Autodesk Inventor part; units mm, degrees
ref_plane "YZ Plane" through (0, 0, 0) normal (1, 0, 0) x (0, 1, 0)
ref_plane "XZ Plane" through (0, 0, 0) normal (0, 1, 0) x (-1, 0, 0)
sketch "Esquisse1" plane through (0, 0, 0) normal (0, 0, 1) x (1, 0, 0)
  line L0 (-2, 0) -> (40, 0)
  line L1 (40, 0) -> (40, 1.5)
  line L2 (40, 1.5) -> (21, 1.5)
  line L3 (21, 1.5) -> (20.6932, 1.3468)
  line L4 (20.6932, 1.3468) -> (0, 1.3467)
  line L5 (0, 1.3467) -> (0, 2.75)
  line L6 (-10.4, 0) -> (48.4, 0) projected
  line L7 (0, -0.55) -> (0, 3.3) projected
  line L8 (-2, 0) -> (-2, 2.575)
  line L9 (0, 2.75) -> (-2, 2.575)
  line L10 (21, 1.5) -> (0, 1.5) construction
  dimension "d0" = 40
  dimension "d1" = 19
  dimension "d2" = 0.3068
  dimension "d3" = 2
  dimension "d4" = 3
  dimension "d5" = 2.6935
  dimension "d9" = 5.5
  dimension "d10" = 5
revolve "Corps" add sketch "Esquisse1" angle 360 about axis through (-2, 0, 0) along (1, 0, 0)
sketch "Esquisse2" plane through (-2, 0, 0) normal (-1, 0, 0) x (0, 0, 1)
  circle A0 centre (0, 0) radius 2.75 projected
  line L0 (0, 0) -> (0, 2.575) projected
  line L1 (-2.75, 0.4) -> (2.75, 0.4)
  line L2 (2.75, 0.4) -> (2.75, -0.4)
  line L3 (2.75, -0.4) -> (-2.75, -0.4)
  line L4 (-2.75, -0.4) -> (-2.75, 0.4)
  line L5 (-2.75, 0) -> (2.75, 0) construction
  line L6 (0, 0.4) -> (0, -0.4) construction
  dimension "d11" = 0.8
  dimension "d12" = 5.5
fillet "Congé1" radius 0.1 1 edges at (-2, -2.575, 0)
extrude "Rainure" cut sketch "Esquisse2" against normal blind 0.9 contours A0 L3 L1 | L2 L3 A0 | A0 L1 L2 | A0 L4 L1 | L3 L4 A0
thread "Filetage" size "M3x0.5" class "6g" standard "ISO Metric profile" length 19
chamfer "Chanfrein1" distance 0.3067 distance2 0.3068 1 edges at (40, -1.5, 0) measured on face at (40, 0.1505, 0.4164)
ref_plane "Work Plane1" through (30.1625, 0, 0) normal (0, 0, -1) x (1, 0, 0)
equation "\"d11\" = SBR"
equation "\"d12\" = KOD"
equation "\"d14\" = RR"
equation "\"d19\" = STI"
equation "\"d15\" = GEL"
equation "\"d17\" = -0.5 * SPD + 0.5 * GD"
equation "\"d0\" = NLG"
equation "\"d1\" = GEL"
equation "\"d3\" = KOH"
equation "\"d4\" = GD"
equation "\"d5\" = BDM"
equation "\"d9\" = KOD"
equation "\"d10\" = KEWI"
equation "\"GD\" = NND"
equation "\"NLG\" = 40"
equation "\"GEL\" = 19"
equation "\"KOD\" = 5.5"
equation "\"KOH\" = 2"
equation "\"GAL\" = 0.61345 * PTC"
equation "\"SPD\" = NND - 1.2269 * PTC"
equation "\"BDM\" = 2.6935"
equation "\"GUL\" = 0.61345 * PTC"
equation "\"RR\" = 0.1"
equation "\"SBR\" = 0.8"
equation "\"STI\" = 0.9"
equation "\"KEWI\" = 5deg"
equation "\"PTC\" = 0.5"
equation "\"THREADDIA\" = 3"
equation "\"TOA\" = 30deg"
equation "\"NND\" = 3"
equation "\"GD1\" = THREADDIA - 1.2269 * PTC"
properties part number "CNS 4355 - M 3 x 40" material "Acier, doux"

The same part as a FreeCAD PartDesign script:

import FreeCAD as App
import Part
import Sketcher
from FreeCAD import Vector
Q = App.Units.Quantity


def edges_at(feature, points):
    """Names of the edges that pass closest to the given points."""
    edges = feature.Shape.Edges
    near = lambda p: min(range(len(edges)), key=lambda i: edges[i].distToShape(Part.Vertex(*p))[0])
    return sorted({f"Edge{near(p) + 1}" for p in points})

doc = App.newDocument("Part")
body = doc.addObject("PartDesign::Body", "Body")

# Sketch on XY plane
sketch1 = body.newObject("Sketcher::SketchObject", "Sketch")
sketch1.AttachmentSupport = (doc.getObject("XY_Plane"), [""])
sketch1.MapMode = "FlatFace"
sketch1.addGeometry(Part.LineSegment(Vector(-2, 2.58, 0), Vector(-2, 0, 0)), False)
sketch1.addGeometry(Part.LineSegment(Vector(-2, 0, 0), Vector(40, 0, 0)), False)
sketch1.addGeometry(Part.LineSegment(Vector(40, 0, 0), Vector(40, 1.5, 0)), False)
sketch1.addGeometry(Part.LineSegment(Vector(40, 1.5, 0), Vector(21, 1.5, 0)), False)
sketch1.addGeometry(Part.LineSegment(Vector(21, 1.5, 0), Vector(20.69, 1.35, 0)), False)
sketch1.addGeometry(Part.LineSegment(Vector(20.69, 1.35, 0), Vector(0, 1.35, 0)), False)
sketch1.addGeometry(Part.LineSegment(Vector(0, 1.35, 0), Vector(0, 2.75, 0)), False)
sketch1.addGeometry(Part.LineSegment(Vector(0, 2.75, 0), Vector(-2, 2.58, 0)), False)
sketch1.addConstraint(Sketcher.Constraint("Coincident", 0, 2, 1, 1))
sketch1.addConstraint(Sketcher.Constraint("Coincident", 1, 2, 2, 1))
sketch1.addConstraint(Sketcher.Constraint("Coincident", 2, 2, 3, 1))
sketch1.addConstraint(Sketcher.Constraint("Coincident", 3, 2, 4, 1))
sketch1.addConstraint(Sketcher.Constraint("Coincident", 4, 2, 5, 1))
sketch1.addConstraint(Sketcher.Constraint("Coincident", 5, 2, 6, 1))
sketch1.addConstraint(Sketcher.Constraint("Coincident", 6, 2, 7, 1))
sketch1.addConstraint(Sketcher.Constraint("Coincident", 7, 2, 0, 1))
sketch1.addConstraint(Sketcher.Constraint("Vertical", 0))
sketch1.addConstraint(Sketcher.Constraint("Horizontal", 1))
sketch1.addConstraint(Sketcher.Constraint("Vertical", 2))
sketch1.addConstraint(Sketcher.Constraint("Horizontal", 3))
sketch1.addConstraint(Sketcher.Constraint("Horizontal", 5))
sketch1.addConstraint(Sketcher.Constraint("Vertical", 6))
sketch1.addConstraint(Sketcher.Constraint("PointOnObject", 0, 2, -1))
sketch1.addConstraint(Sketcher.Constraint("PointOnObject", 5, 2, -2))
sketch1.addConstraint(Sketcher.Constraint("DistanceX", 3, 2, 3, 1, 19.0))
sketch1.addConstraint(Sketcher.Constraint("DistanceX", 0, 2, -1, 1, 2.0))
sketch1.addConstraint(Sketcher.Constraint("DistanceX", -1, 1, 1, 2, 40.0))
sketch1.addConstraint(Sketcher.Constraint("Angle", 7, Q("-174.9994 deg")))
sketch1.addConstraint(Sketcher.Constraint("DistanceY", 2, 1, 2, 2, 1.5))
sketch1.addConstraint(Sketcher.Constraint("DistanceX", 4, 2, 3, 2, 0.3068))
sketch1.addConstraint(Sketcher.Constraint("DistanceY", 0, 2, 0, 1, 2.575))
sketch1.addConstraint(Sketcher.Constraint("Distance", 4, 0.343))
revolution = body.newObject("PartDesign::Revolution", "Revolution")
revolution.Profile = sketch1
revolution.ReferenceAxis = (sketch1, ["H_Axis"])
revolution.Angle = 360
doc.recompute()

fillet = body.newObject("PartDesign::Fillet", "Fillet")
fillet.Base = (revolution, edges_at(revolution, [(-2, -2.575, 0)]))
fillet.Radius = 0.1

# Sketch on YZ plane
sketch2 = body.newObject("Sketcher::SketchObject", "Sketch001")
sketch2.AttachmentSupport = (doc.getObject("YZ_Plane"), [""])
sketch2.MapMode = "FlatFace"
sketch2.AttachmentOffset = App.Placement(Vector(0, 0, -2), App.Rotation())
sketch2.addGeometry(Part.LineSegment(Vector(-0.4, 2.8, 0), Vector(0.4, 2.8, 0)), False)
sketch2.addGeometry(Part.LineSegment(Vector(0.4, 2.8, 0), Vector(0.4, -2.8, 0)), False)
sketch2.addGeometry(Part.LineSegment(Vector(0.4, -2.8, 0), Vector(-0.4, -2.8, 0)), False)
sketch2.addGeometry(Part.LineSegment(Vector(-0.4, -2.8, 0), Vector(-0.4, 2.8, 0)), False)
sketch2.addConstraint(Sketcher.Constraint("Coincident", 0, 2, 1, 1))
sketch2.addConstraint(Sketcher.Constraint("Coincident", 1, 2, 2, 1))
sketch2.addConstraint(Sketcher.Constraint("Coincident", 2, 2, 3, 1))
sketch2.addConstraint(Sketcher.Constraint("Coincident", 3, 2, 0, 1))
sketch2.addConstraint(Sketcher.Constraint("Horizontal", 0))
sketch2.addConstraint(Sketcher.Constraint("Vertical", 1))
sketch2.addConstraint(Sketcher.Constraint("Horizontal", 2))
sketch2.addConstraint(Sketcher.Constraint("Vertical", 3))
sketch2.addConstraint(Sketcher.Constraint("Symmetric", 0, 2, 2, 2, -1, 1))
sketch2.addConstraint(Sketcher.Constraint("DistanceX", 0, 1, 0, 2, 0.8))
sketch2.addConstraint(Sketcher.Constraint("DistanceY", 1, 2, 1, 1, 5.5))
pocket1 = body.newObject("PartDesign::Pocket", "Pocket")
pocket1.Profile = sketch2
pocket1.Length = 0.9
pocket1.Reversed = True
doc.recompute()

chamfer = body.newObject("PartDesign::Chamfer", "Chamfer")
chamfer.Base = (pocket1, edges_at(pocket1, [(40, -1.5, 0)]))
chamfer.ChamferType = "Two distances"
chamfer.Size = 0.3067
chamfer.Size2 = 0.3068

doc.recompute()
